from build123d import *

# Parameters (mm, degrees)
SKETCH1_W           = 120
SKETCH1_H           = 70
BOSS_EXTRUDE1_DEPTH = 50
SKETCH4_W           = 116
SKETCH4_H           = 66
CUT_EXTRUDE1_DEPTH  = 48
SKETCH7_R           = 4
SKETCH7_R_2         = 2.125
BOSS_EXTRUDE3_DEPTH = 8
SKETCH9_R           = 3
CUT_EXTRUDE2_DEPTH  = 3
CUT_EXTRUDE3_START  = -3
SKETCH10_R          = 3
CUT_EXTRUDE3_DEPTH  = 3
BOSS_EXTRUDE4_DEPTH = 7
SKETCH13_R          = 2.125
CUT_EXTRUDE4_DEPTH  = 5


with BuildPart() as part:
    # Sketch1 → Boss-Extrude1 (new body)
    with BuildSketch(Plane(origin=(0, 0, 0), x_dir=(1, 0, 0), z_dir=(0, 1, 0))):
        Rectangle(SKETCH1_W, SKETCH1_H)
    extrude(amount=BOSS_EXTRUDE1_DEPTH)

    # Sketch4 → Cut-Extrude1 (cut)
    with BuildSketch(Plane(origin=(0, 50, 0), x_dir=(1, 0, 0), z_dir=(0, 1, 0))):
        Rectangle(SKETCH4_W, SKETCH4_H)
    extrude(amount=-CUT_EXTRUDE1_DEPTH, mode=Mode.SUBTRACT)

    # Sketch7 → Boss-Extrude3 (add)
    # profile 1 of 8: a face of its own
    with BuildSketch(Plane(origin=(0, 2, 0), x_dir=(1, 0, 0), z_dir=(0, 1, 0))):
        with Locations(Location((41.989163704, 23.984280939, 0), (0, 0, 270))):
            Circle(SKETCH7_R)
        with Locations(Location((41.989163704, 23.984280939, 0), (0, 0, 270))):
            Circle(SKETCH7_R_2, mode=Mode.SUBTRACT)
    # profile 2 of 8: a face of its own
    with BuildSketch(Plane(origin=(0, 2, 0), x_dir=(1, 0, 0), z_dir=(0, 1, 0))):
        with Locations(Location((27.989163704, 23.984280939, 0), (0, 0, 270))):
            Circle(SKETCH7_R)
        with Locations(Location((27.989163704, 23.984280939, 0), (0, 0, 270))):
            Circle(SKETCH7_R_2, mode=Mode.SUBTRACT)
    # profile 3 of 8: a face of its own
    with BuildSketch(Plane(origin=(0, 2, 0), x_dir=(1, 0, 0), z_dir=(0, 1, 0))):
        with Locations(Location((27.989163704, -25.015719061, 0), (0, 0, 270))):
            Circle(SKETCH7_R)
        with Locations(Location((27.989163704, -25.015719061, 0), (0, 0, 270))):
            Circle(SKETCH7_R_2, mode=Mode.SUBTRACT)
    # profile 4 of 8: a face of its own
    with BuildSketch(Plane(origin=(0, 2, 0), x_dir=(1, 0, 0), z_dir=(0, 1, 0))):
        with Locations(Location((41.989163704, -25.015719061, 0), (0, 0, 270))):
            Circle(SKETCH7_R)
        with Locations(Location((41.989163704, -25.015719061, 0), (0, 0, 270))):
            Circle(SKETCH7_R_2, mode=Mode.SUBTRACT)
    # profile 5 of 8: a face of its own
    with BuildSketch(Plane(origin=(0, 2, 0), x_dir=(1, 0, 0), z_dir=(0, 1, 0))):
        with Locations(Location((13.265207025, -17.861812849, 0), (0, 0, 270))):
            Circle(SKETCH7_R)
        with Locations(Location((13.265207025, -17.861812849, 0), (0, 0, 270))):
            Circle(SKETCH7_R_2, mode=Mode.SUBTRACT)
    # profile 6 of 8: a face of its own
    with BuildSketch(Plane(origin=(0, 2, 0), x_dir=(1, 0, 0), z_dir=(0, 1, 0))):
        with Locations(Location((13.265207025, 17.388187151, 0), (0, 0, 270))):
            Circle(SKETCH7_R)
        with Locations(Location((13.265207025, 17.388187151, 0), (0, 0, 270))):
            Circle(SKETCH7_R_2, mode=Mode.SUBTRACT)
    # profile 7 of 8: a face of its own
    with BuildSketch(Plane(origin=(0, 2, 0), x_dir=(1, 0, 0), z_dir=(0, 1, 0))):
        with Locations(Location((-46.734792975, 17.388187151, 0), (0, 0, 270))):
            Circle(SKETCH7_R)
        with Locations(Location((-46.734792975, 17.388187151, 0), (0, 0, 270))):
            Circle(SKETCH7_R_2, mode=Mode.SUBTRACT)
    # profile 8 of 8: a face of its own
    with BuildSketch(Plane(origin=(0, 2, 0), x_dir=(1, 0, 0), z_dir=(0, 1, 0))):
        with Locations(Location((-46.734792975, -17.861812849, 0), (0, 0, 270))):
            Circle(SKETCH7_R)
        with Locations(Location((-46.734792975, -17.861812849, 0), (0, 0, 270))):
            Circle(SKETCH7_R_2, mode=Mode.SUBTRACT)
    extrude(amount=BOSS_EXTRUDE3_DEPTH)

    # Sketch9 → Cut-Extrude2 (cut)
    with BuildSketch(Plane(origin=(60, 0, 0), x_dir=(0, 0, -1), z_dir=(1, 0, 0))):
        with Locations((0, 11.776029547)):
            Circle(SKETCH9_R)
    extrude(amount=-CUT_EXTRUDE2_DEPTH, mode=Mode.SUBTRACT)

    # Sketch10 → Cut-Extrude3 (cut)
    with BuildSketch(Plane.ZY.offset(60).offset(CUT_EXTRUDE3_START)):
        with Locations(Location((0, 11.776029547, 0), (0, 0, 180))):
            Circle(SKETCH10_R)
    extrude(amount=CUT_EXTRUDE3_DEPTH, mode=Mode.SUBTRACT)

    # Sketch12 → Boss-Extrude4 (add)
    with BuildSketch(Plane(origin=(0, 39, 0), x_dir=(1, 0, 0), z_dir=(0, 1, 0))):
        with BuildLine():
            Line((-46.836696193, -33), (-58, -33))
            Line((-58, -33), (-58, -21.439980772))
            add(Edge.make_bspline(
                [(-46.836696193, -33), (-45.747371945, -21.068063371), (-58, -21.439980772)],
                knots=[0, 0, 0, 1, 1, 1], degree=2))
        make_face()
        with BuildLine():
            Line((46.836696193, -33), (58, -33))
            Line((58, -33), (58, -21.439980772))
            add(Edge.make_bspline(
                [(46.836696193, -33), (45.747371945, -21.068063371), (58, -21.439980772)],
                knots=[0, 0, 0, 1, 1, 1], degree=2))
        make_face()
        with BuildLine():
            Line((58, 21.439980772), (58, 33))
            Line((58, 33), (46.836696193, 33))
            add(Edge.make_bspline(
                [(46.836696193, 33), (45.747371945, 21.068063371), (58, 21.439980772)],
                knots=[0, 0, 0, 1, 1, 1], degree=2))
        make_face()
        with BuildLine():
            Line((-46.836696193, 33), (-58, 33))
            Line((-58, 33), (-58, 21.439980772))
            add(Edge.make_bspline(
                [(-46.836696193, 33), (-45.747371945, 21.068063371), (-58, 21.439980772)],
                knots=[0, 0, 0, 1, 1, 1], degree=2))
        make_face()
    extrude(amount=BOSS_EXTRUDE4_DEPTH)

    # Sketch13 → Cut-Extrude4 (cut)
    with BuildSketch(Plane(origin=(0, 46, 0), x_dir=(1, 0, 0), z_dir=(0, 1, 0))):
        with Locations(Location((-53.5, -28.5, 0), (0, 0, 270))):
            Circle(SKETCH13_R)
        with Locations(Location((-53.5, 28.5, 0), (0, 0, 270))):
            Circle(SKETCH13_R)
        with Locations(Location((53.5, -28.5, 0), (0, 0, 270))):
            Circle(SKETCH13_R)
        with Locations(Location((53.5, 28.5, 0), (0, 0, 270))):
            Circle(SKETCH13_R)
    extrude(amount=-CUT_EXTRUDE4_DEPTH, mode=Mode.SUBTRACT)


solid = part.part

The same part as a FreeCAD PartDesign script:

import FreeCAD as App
import Part
import Sketcher

V = App.Vector

doc = App.newDocument("Part")
body = doc.addObject("PartDesign::Body", "Body")

# Sketch on XZ plane
sketch1 = body.newObject("Sketcher::SketchObject", "Sketch")
sketch1.AttachmentSupport = (doc.getObject("XZ_Plane"), [""])
sketch1.MapMode = "FlatFace"
sketch1.addGeometry(Part.LineSegment(V(-60, -35, 0), V(-60, 35, 0)), False)
sketch1.addGeometry(Part.LineSegment(V(-60, 35, 0), V(60, 35, 0)), False)
sketch1.addGeometry(Part.LineSegment(V(60, 35, 0), V(60, -35, 0)), False)
sketch1.addGeometry(Part.LineSegment(V(60, -35, 0), V(-60, -35, 0)), False)
sketch1.addConstraint(Sketcher.Constraint("Coincident", 0, 2, 1, 1))
sketch1.addConstraint(Sketcher.Constraint("Coincident", 1, 2, 2, 1))
sketch1.addConstraint(Sketcher.Constraint("Coincident", 2, 2, 3, 1))
sketch1.addConstraint(Sketcher.Constraint("Coincident", 3, 2, 0, 1))
sketch1.addConstraint(Sketcher.Constraint("Vertical", 0))
sketch1.addConstraint(Sketcher.Constraint("Horizontal", 1))
sketch1.addConstraint(Sketcher.Constraint("Vertical", 2))
sketch1.addConstraint(Sketcher.Constraint("Horizontal", 3))
sketch1.addConstraint(Sketcher.Constraint("Symmetric", 0, 2, 2, 2, -1, 1))
sketch1.addConstraint(Sketcher.Constraint("DistanceX", 1, 1, 1, 2, 120.0))
sketch1.addConstraint(Sketcher.Constraint("DistanceY", 0, 1, 0, 2, 70.0))
pad1 = body.newObject("PartDesign::Pad", "Pad")
pad1.Profile = sketch1
pad1.Length = 50
pad1.Reversed = True

# Sketch on XZ plane
sketch2 = body.newObject("Sketcher::SketchObject", "Sketch001")
sketch2.AttachmentSupport = (doc.getObject("XZ_Plane"), [""])
sketch2.MapMode = "FlatFace"
sketch2.AttachmentOffset = App.Placement(V(0, 0, -50), App.Rotation())
sketch2.addGeometry(Part.LineSegment(V(-58, -33, 0), V(-58, 33, 0)), False)
sketch2.addGeometry(Part.LineSegment(V(-58, 33, 0), V(58, 33, 0)), False)
sketch2.addGeometry(Part.LineSegment(V(58, 33, 0), V(58, -33, 0)), False)
sketch2.addGeometry(Part.LineSegment(V(58, -33, 0), V(-58, -33, 0)), False)
sketch2.addConstraint(Sketcher.Constraint("Coincident", 0, 2, 1, 1))
sketch2.addConstraint(Sketcher.Constraint("Coincident", 1, 2, 2, 1))
sketch2.addConstraint(Sketcher.Constraint("Coincident", 2, 2, 3, 1))
sketch2.addConstraint(Sketcher.Constraint("Coincident", 3, 2, 0, 1))
sketch2.addConstraint(Sketcher.Constraint("Vertical", 0))
sketch2.addConstraint(Sketcher.Constraint("Horizontal", 1))
sketch2.addConstraint(Sketcher.Constraint("Vertical", 2))
sketch2.addConstraint(Sketcher.Constraint("Horizontal", 3))
sketch2.addConstraint(Sketcher.Constraint("Symmetric", 0, 2, 2, 2, -1, 1))
sketch2.addConstraint(Sketcher.Constraint("DistanceX", 1, 1, 1, 2, 116.0))
sketch2.addConstraint(Sketcher.Constraint("DistanceY", 0, 1, 0, 2, 66.0))
pocket1 = body.newObject("PartDesign::Pocket", "Pocket")
pocket1.Profile = sketch2
pocket1.Length = 48
pocket1.Reversed = True

# Sketch on XZ plane
sketch3 = body.newObject("Sketcher::SketchObject", "Sketch002")
sketch3.AttachmentSupport = (doc.getObject("XZ_Plane"), [""])
sketch3.MapMode = "FlatFace"
sketch3.AttachmentOffset = App.Placement(V(0, 0, -2), App.Rotation())
sketch3.addGeometry(Part.Circle(V(41.989164, -23.984281, 0), V(0, 0, 1), 4), False)
sketch3.addGeometry(Part.Circle(V(41.989164, -23.984281, 0), V(0, 0, 1), 2.125), False)
sketch3.addGeometry(Part.Circle(V(27.989164, -23.984281, 0), V(0, 0, 1), 4), False)
sketch3.addGeometry(Part.Circle(V(27.989164, -23.984281, 0), V(0, 0, 1), 2.125), False)
sketch3.addGeometry(Part.Circle(V(27.989164, 25.015719, 0), V(0, 0, 1), 4), False)
sketch3.addGeometry(Part.Circle(V(27.989164, 25.015719, 0), V(0, 0, 1), 2.125), False)
sketch3.addGeometry(Part.Circle(V(41.989164, 25.015719, 0), V(0, 0, 1), 4), False)
sketch3.addGeometry(Part.Circle(V(41.989164, 25.015719, 0), V(0, 0, 1), 2.125), False)
sketch3.addGeometry(Part.Circle(V(13.265207, 17.861813, 0), V(0, 0, 1), 4), False)
sketch3.addGeometry(Part.Circle(V(13.265207, 17.861813, 0), V(0, 0, 1), 2.125), False)
sketch3.addGeometry(Part.Circle(V(13.265207, -17.388187, 0), V(0, 0, 1), 4), False)
sketch3.addGeometry(Part.Circle(V(13.265207, -17.388187, 0), V(0, 0, 1), 2.125), False)
sketch3.addGeometry(Part.Circle(V(-46.734793, -17.388187, 0), V(0, 0, 1), 4), False)
sketch3.addGeometry(Part.Circle(V(-46.734793, -17.388187, 0), V(0, 0, 1), 2.125), False)
sketch3.addGeometry(Part.Circle(V(-46.734793, 17.861813, 0), V(0, 0, 1), 4), False)
sketch3.addGeometry(Part.Circle(V(-46.734793, 17.861813, 0), V(0, 0, 1), 2.125), False)
sketch3.addConstraint(Sketcher.Constraint("Coincident", 1, 3, 0, 3))
sketch3.addConstraint(Sketcher.Constraint("Coincident", 3, 3, 2, 3))
sketch3.addConstraint(Sketcher.Constraint("Coincident", 5, 3, 4, 3))
sketch3.addConstraint(Sketcher.Constraint("Coincident", 7, 3, 6, 3))
sketch3.addConstraint(Sketcher.Constraint("Coincident", 9, 3, 8, 3))
sketch3.addConstraint(Sketcher.Constraint("Coincident", 11, 3, 10, 3))
sketch3.addConstraint(Sketcher.Constraint("Coincident", 13, 3, 12, 3))
sketch3.addConstraint(Sketcher.Constraint("Coincident", 15, 3, 14, 3))
sketch3.addConstraint(Sketcher.Constraint("Equal", 0, 2))
sketch3.addConstraint(Sketcher.Constraint("Equal", 1, 3))
sketch3.addConstraint(Sketcher.Constraint("Equal", 2, 4))
sketch3.addConstraint(Sketcher.Constraint("Equal", 3, 5))
sketch3.addConstraint(Sketcher.Constraint("Equal", 4, 6))
sketch3.addConstraint(Sketcher.Constraint("Equal", 5, 7))
sketch3.addConstraint(Sketcher.Constraint("Equal", 6, 8))
sketch3.addConstraint(Sketcher.Constraint("Equal", 7, 9))
sketch3.addConstraint(Sketcher.Constraint("Equal", 8, 10))
sketch3.addConstraint(Sketcher.Constraint("Equal", 9, 11))
sketch3.addConstraint(Sketcher.Constraint("Equal", 10, 12))
sketch3.addConstraint(Sketcher.Constraint("Equal", 11, 13))
sketch3.addConstraint(Sketcher.Constraint("Equal", 12, 14))
sketch3.addConstraint(Sketcher.Constraint("Equal", 13, 15))
sketch3.addConstraint(Sketcher.Constraint("Horizontal", 1, 3, 2, 3))
sketch3.addConstraint(Sketcher.Constraint("Horizontal", 5, 3, 6, 3))
sketch3.addConstraint(Sketcher.Constraint("Horizontal", 11, 3, 12, 3))
sketch3.addConstraint(Sketcher.Constraint("Horizontal", 9, 3, 14, 3))
sketch3.addConstraint(Sketcher.Constraint("Vertical", 3, 3, 4, 3))
sketch3.addConstraint(Sketcher.Constraint("Vertical", 1, 3, 6, 3))
sketch3.addConstraint(Sketcher.Constraint("Vertical", 9, 3, 10, 3))
sketch3.addConstraint(Sketcher.Constraint("Vertical", 13, 3, 14, 3))
sketch3.addConstraint(Sketcher.Constraint("Diameter", 0, 8.0))
sketch3.addConstraint(Sketcher.Constraint("Diameter", 1, 4.25))
sketch3.addConstraint(Sketcher.Constraint("DistanceX", 2, 3, 0, 3, 14.0))
sketch3.addConstraint(Sketcher.Constraint("DistanceY", 2, 3, 4, 3, 49.0))
sketch3.addConstraint(Sketcher.Constraint("DistanceX", 12, 3, 10, 3, 60.0))
sketch3.addConstraint(Sketcher.Constraint("DistanceY", 10, 3, 8, 3, 35.25))
sketch3.addConstraint(Sketcher.Constraint("DistanceY", 0, 3, -1, 1, 23.984281))
sketch3.addConstraint(Sketcher.Constraint("DistanceX", -1, 1, 0, 3, 41.989164))
sketch3.addConstraint(Sketcher.Constraint("DistanceX", -1, 1, 8, 3, 13.265207))
sketch3.addConstraint(Sketcher.Constraint("DistanceY", -1, 1, 8, 3, 17.861813))
pad2 = body.newObject("PartDesign::Pad", "Pad001")
pad2.Profile = sketch3
pad2.Length = 8
pad2.Reversed = True

# Sketch on YZ plane
sketch4 = body.newObject("Sketcher::SketchObject", "Sketch003")
sketch4.AttachmentSupport = (doc.getObject("YZ_Plane"), [""])
sketch4.MapMode = "FlatFace"
sketch4.AttachmentOffset = App.Placement(V(0, 0, 60), App.Rotation())
sketch4.addGeometry(Part.Circle(V(11.77603, 0, 0), V(0, 0, 1), 3), False)
sketch4.addConstraint(Sketcher.Constraint("PointOnObject", 0, 3, -1))
sketch4.addConstraint(Sketcher.Constraint("Diameter", 0, 6.0))
sketch4.addConstraint(Sketcher.Constraint("DistanceX", -1, 1, 0, 3, 11.77603))
pocket2 = body.newObject("PartDesign::Pocket", "Pocket001")
pocket2.Profile = sketch4
pocket2.Length = 3

# Sketch on YZ plane
sketch5 = body.newObject("Sketcher::SketchObject", "Sketch004")
sketch5.AttachmentSupport = (doc.getObject("YZ_Plane"), [""])
sketch5.MapMode = "FlatFace"
sketch5.AttachmentOffset = App.Placement(V(0, 0, -57), App.Rotation())
sketch5.addGeometry(Part.Circle(V(11.77603, 0, 0), V(0, 0, 1), 3), False)
sketch5.addConstraint(Sketcher.Constraint("PointOnObject", 0, 3, -1))
sketch5.addConstraint(Sketcher.Constraint("Diameter", 0, 6.0))
sketch5.addConstraint(Sketcher.Constraint("DistanceX", -1, 1, 0, 3, 11.77603))
pocket3 = body.newObject("PartDesign::Pocket", "Pocket002")
pocket3.Profile = sketch5
pocket3.Length = 3

# Sketch on XZ plane
sketch6 = body.newObject("Sketcher::SketchObject", "Sketch005")
sketch6.AttachmentSupport = (doc.getObject("XZ_Plane"), [""])
sketch6.MapMode = "FlatFace"
sketch6.AttachmentOffset = App.Placement(V(0, 0, -39), App.Rotation())
sketch6.addGeometry(Part.LineSegment(V(-58, 33, 0), V(-46.836696, 33, 0)), False)
sketch6.addGeometry(Part.BSplineCurve([V(-46.836696, 33, 0), V(-45.747372, 21.068063, 0), V(-58, 21.439981, 0)], [3, 3], [0, 1], False, 2, [1, 1, 1], False), False)
sketch6.addGeometry(Part.LineSegment(V(-58, 21.439981, 0), V(-58, 33, 0)), False)
sketch6.addGeometry(Part.LineSegment(V(46.836696, 33, 0), V(58, 33, 0)), False)
sketch6.addGeometry(Part.LineSegment(V(58, 33, 0), V(58, 21.439981, 0)), False)
sketch6.addGeometry(Part.BSplineCurve([V(46.836696, 33, 0), V(45.747372, 21.068063, 0), V(58, 21.439981, 0)], [3, 3], [0, 1], False, 2, [1, 1, 1], False), False)
sketch6.addGeometry(Part.LineSegment(V(58, -21.439981, 0), V(58, -33, 0)), False)
sketch6.addGeometry(Part.LineSegment(V(58, -33, 0), V(46.836696, -33, 0)), False)
sketch6.addGeometry(Part.BSplineCurve([V(46.836696, -33, 0), V(45.747372, -21.068063, 0), V(58, -21.439981, 0)], [3, 3], [0, 1], False, 2, [1, 1, 1], False), False)
sketch6.addGeometry(Part.LineSegment(V(-46.836696, -33, 0), V(-58, -33, 0)), False)
sketch6.addGeometry(Part.LineSegment(V(-58, -33, 0), V(-58, -21.439981, 0)), False)
sketch6.addGeometry(Part.BSplineCurve([V(-46.836696, -33, 0), V(-45.747372, -21.068063, 0), V(-58, -21.439981, 0)], [3, 3], [0, 1], False, 2, [1, 1, 1], False), False)
sketch6.addConstraint(Sketcher.Constraint("Block", 1))
sketch6.addConstraint(Sketcher.Constraint("Block", 5))
sketch6.addConstraint(Sketcher.Constraint("Block", 8))
sketch6.addConstraint(Sketcher.Constraint("Block", 11))
sketch6.addConstraint(Sketcher.Constraint("Coincident", 0, 2, 1, 1))
sketch6.addConstraint(Sketcher.Constraint("Coincident", 1, 2, 2, 1))
sketch6.addConstraint(Sketcher.Constraint("Coincident", 2, 2, 0, 1))
sketch6.addConstraint(Sketcher.Constraint("Coincident", 3, 2, 4, 1))
sketch6.addConstraint(Sketcher.Constraint("Coincident", 4, 2, 5, 2))
sketch6.addConstraint(Sketcher.Constraint("Coincident", 5, 1, 3, 1))
sketch6.addConstraint(Sketcher.Constraint("Coincident", 6, 2, 7, 1))
sketch6.addConstraint(Sketcher.Constraint("Coincident", 7, 2, 8, 1))
sketch6.addConstraint(Sketcher.Constraint("Coincident", 8, 2, 6, 1))
sketch6.addConstraint(Sketcher.Constraint("Coincident", 9, 2, 10, 1))
sketch6.addConstraint(Sketcher.Constraint("Coincident", 10, 2, 11, 2))
sketch6.addConstraint(Sketcher.Constraint("Coincident", 11, 1, 9, 1))
sketch6.addConstraint(Sketcher.Constraint("Horizontal", 0))
sketch6.addConstraint(Sketcher.Constraint("Vertical", 2))
sketch6.addConstraint(Sketcher.Constraint("Horizontal", 3))
sketch6.addConstraint(Sketcher.Constraint("Vertical", 4))
sketch6.addConstraint(Sketcher.Constraint("Vertical", 6))
sketch6.addConstraint(Sketcher.Constraint("Horizontal", 7))
sketch6.addConstraint(Sketcher.Constraint("Horizontal", 9))
sketch6.addConstraint(Sketcher.Constraint("Vertical", 10))
pad3 = body.newObject("PartDesign::Pad", "Pad002")
pad3.Profile = sketch6
pad3.Length = 7
pad3.Reversed = True

# Sketch on XZ plane
sketch7 = body.newObject("Sketcher::SketchObject", "Sketch006")
sketch7.AttachmentSupport = (doc.getObject("XZ_Plane"), [""])
sketch7.MapMode = "FlatFace"
sketch7.AttachmentOffset = App.Placement(V(0, 0, -46), App.Rotation())
sketch7.addGeometry(Part.Circle(V(-53.5, 28.5, 0), V(0, 0, 1), 2.125), False)
sketch7.addGeometry(Part.Circle(V(-53.5, -28.5, 0), V(0, 0, 1), 2.125), False)
sketch7.addGeometry(Part.Circle(V(53.5, 28.5, 0), V(0, 0, 1), 2.125), False)
sketch7.addGeometry(Part.Circle(V(53.5, -28.5, 0), V(0, 0, 1), 2.125), False)
sketch7.addConstraint(Sketcher.Constraint("Equal", 0, 1))
sketch7.addConstraint(Sketcher.Constraint("Equal", 1, 2))
sketch7.addConstraint(Sketcher.Constraint("Equal", 2, 3))
sketch7.addConstraint(Sketcher.Constraint("Symmetric", 1, 3, 2, 3, -1, 1))
sketch7.addConstraint(Sketcher.Constraint("Symmetric", 0, 3, 3, 3, -1, 1))
sketch7.addConstraint(Sketcher.Constraint("Symmetric", 0, 3, 2, 3, -2))
sketch7.addConstraint(Sketcher.Constraint("Diameter", 0, 4.25))
sketch7.addConstraint(Sketcher.Constraint("DistanceY", 1, 3, 0, 3, 57.0))
sketch7.addConstraint(Sketcher.Constraint("DistanceX", 0, 3, 2, 3, 107.0))
pocket4 = body.newObject("PartDesign::Pocket", "Pocket003")
pocket4.Profile = sketch7
pocket4.Length = 5
pocket4.Reversed = True

doc.recompute()
